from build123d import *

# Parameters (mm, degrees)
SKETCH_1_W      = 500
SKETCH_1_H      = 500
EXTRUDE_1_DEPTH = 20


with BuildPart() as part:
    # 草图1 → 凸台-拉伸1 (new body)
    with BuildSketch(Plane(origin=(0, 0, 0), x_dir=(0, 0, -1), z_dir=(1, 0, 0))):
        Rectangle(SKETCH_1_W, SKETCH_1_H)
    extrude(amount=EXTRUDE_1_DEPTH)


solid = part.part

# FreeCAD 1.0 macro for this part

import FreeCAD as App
import Part
import Sketcher

doc = App.newDocument("Part")
params = doc.addObject("Spreadsheet::Sheet", "Params")
for row, (alias, value) in enumerate([
    ("sketch1_width", "500 mm"),
    ("pad1_length", "20 mm"),
], start=1):
    params.set(f"A{row}", alias)
    params.set(f"B{row}", "=" + value)
    params.setAlias(f"B{row}", alias)

body = doc.addObject("PartDesign::Body", "Body")

# Sketch on YZ plane
sketch1 = body.newObject("Sketcher::SketchObject", "Sketch")
sketch1.AttachmentSupport = (doc.getObject("YZ_Plane"), [""])
sketch1.MapMode = "FlatFace"
sketch1.addGeometry([
    Part.LineSegment(App.Vector(250, 250, 0), App.Vector(-250, 250, 0)),
    Part.LineSegment(App.Vector(-250, 250, 0), App.Vector(-250, -250, 0)),
    Part.LineSegment(App.Vector(-250, -250, 0), App.Vector(250, -250, 0)),
    Part.LineSegment(App.Vector(250, -250, 0), App.Vector(250, 250, 0)),
], False)
sketch1.addConstraint([
    Sketcher.Constraint("Coincident", 0, 2, 1, 1),
    Sketcher.Constraint("Coincident", 1, 2, 2, 1),
    Sketcher.Constraint("Coincident", 2, 2, 3, 1),
    Sketcher.Constraint("Coincident", 3, 2, 0, 1),
    Sketcher.Constraint("Horizontal", 0),
    Sketcher.Constraint("Vertical", 1),
    Sketcher.Constraint("Horizontal", 2),
    Sketcher.Constraint("Vertical", 3),
    Sketcher.Constraint("Symmetric", 0, 2, 2, 2, -1, 1),
    Sketcher.Constraint("Equal", 2, 1),
    Sketcher.Constraint("DistanceX", 0, 2, 0, 1, 500.0),
])
sketch1.setExpression("Constraints[10]", "Params.sketch1_width")
pad1 = body.newObject("PartDesign::Pad", "Pad")
pad1.Profile = sketch1
pad1.setExpression("Length", "Params.pad1_length")

doc.recompute()
